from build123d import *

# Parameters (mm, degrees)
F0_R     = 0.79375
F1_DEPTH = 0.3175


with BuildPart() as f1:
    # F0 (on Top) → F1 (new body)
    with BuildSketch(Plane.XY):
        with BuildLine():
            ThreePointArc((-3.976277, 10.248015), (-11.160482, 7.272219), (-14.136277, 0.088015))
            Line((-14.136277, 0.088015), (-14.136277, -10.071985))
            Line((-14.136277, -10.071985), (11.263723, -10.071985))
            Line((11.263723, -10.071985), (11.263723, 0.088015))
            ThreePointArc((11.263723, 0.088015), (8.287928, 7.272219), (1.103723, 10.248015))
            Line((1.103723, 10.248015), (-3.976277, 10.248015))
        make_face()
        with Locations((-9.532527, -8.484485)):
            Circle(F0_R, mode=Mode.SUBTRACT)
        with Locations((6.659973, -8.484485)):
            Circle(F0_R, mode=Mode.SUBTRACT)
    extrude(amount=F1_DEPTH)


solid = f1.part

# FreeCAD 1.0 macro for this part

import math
import FreeCAD as App
import Part
import Sketcher
from FreeCAD import Vector
Q = App.Units.Quantity

doc = App.newDocument("Part")
body = doc.addObject("PartDesign::Body", "Body")

sketch1 = doc.addObject("Sketcher::SketchObject", "Sketch")
body.addObject(sketch1)
sketch1.AttachmentSupport = (doc.XY_Plane, [""])
sketch1.MapMode = "FlatFace"
sketch1.addGeometry([
    Part.ArcOfCircle(Part.Circle(Vector(-3.976276, 0.088014, 0), Vector(0, 0, 1), 10.160001), math.radians(90.000008), math.radians(179.999992)),
    Part.LineSegment(Vector(-14.136277, 0.088015, 0), Vector(-14.136277, -10.071985, 0)),
    Part.LineSegment(Vector(-14.136277, -10.071985, 0), Vector(11.263723, -10.071985, 0)),
    Part.LineSegment(Vector(11.263723, -10.071985, 0), Vector(11.263723, 0.088015, 0)),
    Part.ArcOfCircle(Part.Circle(Vector(1.103722, 0.088014, 0), Vector(0, 0, 1), 10.160001), math.radians(0.000008), math.radians(89.999992)),
    Part.LineSegment(Vector(1.103723, 10.248015, 0), Vector(-3.976277, 10.248015, 0)),
    Part.Circle(Vector(-9.532527, -8.484485, 0), Vector(0, 0, 1), 0.79375),
    Part.Circle(Vector(6.659973, -8.484485, 0), Vector(0, 0, 1), 0.79375),
], False)
sketch1.addConstraint([
    Sketcher.Constraint("Tangent", 0, 2, 1, 1),
    Sketcher.Constraint("Coincident", 1, 2, 2, 1),
    Sketcher.Constraint("Coincident", 2, 2, 3, 1),
    Sketcher.Constraint("Tangent", 3, 2, 4, 1),
    Sketcher.Constraint("Tangent", 4, 2, 5, 1),
    Sketcher.Constraint("Tangent", 5, 2, 0, 1),
    Sketcher.Constraint("Vertical", 1),
    Sketcher.Constraint("Horizontal", 2),
    Sketcher.Constraint("Vertical", 3),
    Sketcher.Constraint("Horizontal", 5),
    Sketcher.Constraint("Equal", 0, 4),
    Sketcher.Constraint("Equal", 6, 7),
    Sketcher.Constraint("Horizontal", 6, 3, 7, 3),
    Sketcher.Constraint("Radius", 0, Q("0.4000001 in")),
    Sketcher.Constraint("DistanceX", 2, 1, 2, 2, Q("1 in")),
    Sketcher.Constraint("Diameter", 6, Q("0.0625 in")),
    Sketcher.Constraint("DistanceY", 1, 2, 1, 1, Q("0.4 in")),
    Sketcher.Constraint("DistanceX", 6, 3, 0, 3, Q("0.2187501 in")),
    Sketcher.Constraint("DistanceX", 4, 3, 7, 3, Q("0.2187501 in")),
    Sketcher.Constraint("DistanceY", 1, 2, 6, 3, Q("0.0625 in")),
    Sketcher.Constraint("DistanceX", -1, 1, 4, 3, Q("1.103722 mm")),
    Sketcher.Constraint("DistanceY", -1, 1, 0, 3, Q("0.088014 mm")),
])
pad1 = doc.addObject("PartDesign::Pad", "Pad")
body.addObject(pad1)
pad1.Profile = sketch1
pad1.Length = Q("0.0125 in")

doc.recompute()
